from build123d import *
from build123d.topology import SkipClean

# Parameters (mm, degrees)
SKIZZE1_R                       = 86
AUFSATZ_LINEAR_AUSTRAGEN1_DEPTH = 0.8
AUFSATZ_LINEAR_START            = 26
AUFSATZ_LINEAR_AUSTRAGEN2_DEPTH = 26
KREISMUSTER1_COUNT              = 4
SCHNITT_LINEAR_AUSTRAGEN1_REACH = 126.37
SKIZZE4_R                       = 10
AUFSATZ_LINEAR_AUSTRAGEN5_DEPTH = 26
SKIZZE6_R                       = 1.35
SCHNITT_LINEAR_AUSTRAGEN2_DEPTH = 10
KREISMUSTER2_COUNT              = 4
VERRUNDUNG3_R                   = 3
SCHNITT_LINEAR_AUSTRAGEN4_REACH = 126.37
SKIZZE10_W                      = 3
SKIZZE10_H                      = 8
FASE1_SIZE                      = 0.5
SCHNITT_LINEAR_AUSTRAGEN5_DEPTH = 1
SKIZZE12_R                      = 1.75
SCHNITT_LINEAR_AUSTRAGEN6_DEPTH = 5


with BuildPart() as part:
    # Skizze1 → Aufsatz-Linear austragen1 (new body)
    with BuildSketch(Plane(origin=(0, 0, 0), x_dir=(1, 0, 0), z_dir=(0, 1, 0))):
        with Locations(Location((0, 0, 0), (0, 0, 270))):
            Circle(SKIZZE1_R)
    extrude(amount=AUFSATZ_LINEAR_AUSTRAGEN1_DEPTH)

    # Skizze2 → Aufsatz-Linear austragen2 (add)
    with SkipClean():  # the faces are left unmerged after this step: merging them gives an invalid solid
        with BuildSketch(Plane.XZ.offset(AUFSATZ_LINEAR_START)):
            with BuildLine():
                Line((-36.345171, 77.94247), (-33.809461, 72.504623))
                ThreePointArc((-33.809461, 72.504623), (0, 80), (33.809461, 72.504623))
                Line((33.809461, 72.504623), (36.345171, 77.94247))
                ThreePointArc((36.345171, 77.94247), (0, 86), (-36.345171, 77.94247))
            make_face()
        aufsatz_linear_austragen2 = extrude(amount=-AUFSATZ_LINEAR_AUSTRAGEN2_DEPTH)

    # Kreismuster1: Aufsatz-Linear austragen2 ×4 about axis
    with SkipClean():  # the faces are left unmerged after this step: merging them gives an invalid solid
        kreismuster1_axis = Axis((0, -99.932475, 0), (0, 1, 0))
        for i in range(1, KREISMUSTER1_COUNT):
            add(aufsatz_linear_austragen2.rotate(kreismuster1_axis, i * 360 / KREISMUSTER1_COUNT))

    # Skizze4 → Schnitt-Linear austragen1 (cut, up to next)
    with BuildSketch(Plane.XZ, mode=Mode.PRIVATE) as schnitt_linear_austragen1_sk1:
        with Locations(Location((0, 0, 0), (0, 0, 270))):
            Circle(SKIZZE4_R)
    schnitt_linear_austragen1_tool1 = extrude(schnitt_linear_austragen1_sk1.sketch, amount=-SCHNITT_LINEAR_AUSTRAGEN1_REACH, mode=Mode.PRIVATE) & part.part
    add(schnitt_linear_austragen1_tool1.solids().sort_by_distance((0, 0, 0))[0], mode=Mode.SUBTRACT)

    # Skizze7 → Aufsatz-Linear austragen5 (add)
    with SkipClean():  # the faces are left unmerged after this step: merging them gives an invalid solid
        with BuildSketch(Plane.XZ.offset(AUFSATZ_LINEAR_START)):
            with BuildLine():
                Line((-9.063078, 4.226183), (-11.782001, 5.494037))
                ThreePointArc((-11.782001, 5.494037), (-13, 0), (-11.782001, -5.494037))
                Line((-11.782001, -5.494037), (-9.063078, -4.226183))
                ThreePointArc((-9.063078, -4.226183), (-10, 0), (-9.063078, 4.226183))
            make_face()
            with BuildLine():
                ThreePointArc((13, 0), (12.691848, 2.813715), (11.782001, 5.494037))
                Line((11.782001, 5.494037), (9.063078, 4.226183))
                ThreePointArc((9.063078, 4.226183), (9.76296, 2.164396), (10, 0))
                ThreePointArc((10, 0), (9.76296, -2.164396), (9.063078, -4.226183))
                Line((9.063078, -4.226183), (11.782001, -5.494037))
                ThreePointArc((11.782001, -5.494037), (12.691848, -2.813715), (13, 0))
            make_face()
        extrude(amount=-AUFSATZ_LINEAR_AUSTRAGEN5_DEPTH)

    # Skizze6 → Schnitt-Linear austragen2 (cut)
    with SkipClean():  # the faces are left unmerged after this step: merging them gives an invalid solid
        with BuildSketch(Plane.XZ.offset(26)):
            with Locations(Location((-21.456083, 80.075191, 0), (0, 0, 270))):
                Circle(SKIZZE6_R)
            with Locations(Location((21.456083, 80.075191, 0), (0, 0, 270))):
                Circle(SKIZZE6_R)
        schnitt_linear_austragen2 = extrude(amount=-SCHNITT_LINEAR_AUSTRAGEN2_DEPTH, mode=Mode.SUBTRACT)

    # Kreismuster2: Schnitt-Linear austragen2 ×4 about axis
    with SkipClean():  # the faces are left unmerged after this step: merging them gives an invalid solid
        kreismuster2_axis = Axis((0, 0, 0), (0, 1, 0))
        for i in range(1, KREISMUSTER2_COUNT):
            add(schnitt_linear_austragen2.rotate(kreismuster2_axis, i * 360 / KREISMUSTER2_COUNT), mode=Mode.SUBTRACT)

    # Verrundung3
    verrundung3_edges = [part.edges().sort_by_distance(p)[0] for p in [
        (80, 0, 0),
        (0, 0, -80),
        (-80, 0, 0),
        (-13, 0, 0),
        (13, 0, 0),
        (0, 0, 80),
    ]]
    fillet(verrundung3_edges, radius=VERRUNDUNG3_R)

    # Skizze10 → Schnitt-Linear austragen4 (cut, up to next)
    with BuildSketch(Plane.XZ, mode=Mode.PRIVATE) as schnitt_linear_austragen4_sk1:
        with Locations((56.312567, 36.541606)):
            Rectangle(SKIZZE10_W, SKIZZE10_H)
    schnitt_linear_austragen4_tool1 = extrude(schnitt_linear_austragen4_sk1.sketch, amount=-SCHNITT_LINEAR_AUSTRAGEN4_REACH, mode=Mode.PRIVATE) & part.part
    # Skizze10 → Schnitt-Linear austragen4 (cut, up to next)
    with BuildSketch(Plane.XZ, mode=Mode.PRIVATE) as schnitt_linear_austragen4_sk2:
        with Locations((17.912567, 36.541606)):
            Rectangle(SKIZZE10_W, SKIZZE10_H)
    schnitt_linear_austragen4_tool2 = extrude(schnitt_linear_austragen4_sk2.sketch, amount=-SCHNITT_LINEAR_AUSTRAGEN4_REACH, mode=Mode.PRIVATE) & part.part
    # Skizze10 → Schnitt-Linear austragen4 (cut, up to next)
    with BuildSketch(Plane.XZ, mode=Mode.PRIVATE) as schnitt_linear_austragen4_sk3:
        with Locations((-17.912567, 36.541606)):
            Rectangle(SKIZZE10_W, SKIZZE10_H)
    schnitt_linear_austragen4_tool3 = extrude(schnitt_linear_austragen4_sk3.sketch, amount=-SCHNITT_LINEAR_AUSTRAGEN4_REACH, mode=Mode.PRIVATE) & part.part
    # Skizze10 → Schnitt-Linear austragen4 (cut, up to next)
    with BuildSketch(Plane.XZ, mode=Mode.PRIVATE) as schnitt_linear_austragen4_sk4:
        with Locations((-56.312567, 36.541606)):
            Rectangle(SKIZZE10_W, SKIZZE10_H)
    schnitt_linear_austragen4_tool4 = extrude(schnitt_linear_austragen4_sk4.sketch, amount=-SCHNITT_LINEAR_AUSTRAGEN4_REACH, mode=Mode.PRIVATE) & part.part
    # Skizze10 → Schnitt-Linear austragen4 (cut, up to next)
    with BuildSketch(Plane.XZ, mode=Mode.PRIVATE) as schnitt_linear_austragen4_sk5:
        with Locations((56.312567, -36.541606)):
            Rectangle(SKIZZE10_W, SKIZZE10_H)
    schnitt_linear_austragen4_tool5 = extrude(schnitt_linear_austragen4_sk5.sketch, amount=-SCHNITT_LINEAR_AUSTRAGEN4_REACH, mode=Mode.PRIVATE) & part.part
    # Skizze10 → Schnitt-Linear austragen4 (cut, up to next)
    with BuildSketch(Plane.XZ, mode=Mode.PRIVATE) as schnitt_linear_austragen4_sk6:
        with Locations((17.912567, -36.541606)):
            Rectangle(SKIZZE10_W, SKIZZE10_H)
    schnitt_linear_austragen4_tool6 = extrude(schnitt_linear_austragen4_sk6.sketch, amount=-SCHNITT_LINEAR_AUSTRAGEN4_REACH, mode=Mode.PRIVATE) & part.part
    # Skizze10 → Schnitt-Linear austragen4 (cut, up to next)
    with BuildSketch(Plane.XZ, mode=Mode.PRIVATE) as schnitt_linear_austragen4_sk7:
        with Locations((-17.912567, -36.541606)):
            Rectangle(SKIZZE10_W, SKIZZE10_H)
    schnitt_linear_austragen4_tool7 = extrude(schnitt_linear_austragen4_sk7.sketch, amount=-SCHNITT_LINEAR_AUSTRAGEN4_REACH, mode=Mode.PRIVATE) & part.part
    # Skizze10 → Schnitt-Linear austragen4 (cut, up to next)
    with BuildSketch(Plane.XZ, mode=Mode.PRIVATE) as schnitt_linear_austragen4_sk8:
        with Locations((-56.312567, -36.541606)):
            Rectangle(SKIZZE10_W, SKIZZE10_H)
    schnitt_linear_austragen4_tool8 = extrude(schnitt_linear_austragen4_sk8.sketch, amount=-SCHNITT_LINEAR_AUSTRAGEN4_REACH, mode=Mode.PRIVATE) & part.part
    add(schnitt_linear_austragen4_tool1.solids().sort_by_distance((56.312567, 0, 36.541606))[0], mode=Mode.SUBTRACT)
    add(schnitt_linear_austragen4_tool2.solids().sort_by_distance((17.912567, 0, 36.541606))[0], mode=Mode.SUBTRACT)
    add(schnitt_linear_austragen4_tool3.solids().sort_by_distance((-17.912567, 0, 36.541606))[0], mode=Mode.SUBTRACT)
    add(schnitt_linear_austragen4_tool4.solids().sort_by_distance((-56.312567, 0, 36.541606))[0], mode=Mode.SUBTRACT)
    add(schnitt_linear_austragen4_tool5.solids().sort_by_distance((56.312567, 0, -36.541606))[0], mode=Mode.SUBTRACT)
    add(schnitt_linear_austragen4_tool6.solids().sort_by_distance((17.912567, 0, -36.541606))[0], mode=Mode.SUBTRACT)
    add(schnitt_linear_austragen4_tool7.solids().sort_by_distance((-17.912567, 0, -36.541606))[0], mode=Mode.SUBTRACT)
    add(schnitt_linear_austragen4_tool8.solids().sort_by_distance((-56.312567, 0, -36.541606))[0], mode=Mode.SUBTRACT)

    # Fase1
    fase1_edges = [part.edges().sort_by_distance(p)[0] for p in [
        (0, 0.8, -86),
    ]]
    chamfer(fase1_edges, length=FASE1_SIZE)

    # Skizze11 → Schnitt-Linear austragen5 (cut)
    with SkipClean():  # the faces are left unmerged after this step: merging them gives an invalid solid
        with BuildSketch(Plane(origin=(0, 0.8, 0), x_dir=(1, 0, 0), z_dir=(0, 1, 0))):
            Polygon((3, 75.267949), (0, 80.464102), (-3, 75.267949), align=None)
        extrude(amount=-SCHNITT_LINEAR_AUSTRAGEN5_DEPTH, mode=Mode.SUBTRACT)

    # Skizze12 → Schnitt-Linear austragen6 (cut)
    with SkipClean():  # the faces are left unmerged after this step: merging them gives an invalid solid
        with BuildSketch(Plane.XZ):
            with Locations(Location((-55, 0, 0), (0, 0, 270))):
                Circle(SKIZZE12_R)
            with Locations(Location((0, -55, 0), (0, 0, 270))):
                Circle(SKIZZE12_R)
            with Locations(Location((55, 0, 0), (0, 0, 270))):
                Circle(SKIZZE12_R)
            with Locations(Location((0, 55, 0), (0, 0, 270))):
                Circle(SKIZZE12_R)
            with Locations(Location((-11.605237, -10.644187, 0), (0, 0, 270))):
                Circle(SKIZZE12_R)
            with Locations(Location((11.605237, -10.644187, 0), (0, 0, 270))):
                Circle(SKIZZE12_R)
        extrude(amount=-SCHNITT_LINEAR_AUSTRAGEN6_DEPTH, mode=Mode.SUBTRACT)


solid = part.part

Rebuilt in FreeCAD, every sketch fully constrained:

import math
import FreeCAD as App
import Part
import Sketcher
from FreeCAD import Vector
Q = App.Units.Quantity


def edges_at(feature, points):
    """Names of the edges that pass closest to the given points."""
    edges = feature.Shape.Edges
    near = lambda p: min(range(len(edges)), key=lambda i: edges[i].distToShape(Part.Vertex(*p))[0])
    return sorted({f"Edge{near(p) + 1}" for p in points})


def add_polygon(sketch, points):
    """Adds a closed chain of lines whose ends are joined by coincident constraints."""
    first, n = sketch.GeometryCount, len(points)
    for a, b in zip(points, points[1:] + points[:1]):
        sketch.addGeometry(Part.LineSegment(App.Vector(*a, 0), App.Vector(*b, 0)), False)
    for i in range(n):
        sketch.addConstraint(Sketcher.Constraint("Coincident", first + i, 2, first + (i + 1) % n, 1))

doc = App.newDocument("Part")
params = doc.addObject("Spreadsheet::Sheet", "Params")
for row, (alias, value) in enumerate([
    ("sketch1_diameter", "172 mm"),
    ("pad1_length", "0.8 mm"),
    ("sketch2_radius", "80.000001 mm"),
    ("sketch2_length", "6 mm"),
    ("pad2_length", "26 mm"),
    ("sketch3_diameter", "20 mm"),
    ("sketch4_length", "2.999999 mm"),
    ("pad3_length", "26 mm"),
    ("sketch5_diameter", "2.7 mm"),
    ("pocket2_length", "10 mm"),
    ("fillet_radius", "3 mm"),
    ("sketch6_width", "3 mm"),
    ("sketch6_height", "8 mm"),
    ("sketch7_width", "3 mm"),
    ("sketch7_height", "8 mm"),
    ("sketch8_width", "3 mm"),
    ("sketch8_height", "8 mm"),
    ("sketch9_width", "3 mm"),
    ("sketch9_height", "8 mm"),
    ("sketch10_width", "3 mm"),
    ("sketch10_height", "8 mm"),
    ("sketch11_width", "3 mm"),
    ("sketch11_height", "8 mm"),
    ("sketch12_width", "3 mm"),
    ("sketch12_height", "8 mm"),
    ("sketch13_width", "3 mm"),
    ("sketch13_height", "8 mm"),
    ("chamfer_size", "0.5 mm"),
    ("sketch14_width", "6 mm"),
    ("pocket11_length", "1 mm"),
    ("sketch15_diameter", "3.5 mm"),
    ("pocket12_length", "5 mm"),
], start=1):
    params.set(f"A{row}", alias)
    params.set(f"B{row}", "=" + value)
    params.setAlias(f"B{row}", alias)

body = doc.addObject("PartDesign::Body", "Body")

# Sketch on XZ plane
sketch1 = body.newObject("Sketcher::SketchObject", "Sketch")
sketch1.AttachmentSupport = (doc.getObject("XZ_Plane"), [""])
sketch1.MapMode = "FlatFace"
sketch1.addGeometry(Part.Circle(Vector(0, 0, 0), Vector(0, 0, 1), 86), False)
sketch1.addConstraint([
    Sketcher.Constraint("Coincident", 0, 3, -1, 1),
    Sketcher.Constraint("Diameter", 0, 172.0),
])
sketch1.setExpression("Constraints[1]", "Params.sketch1_diameter")
pad1 = body.newObject("PartDesign::Pad", "Pad")
pad1.Profile = sketch1
pad1.setExpression("Length", "Params.pad1_length")
pad1.Reversed = True

# Sketch on XZ plane
sketch2 = body.newObject("Sketcher::SketchObject", "Sketch001")
sketch2.AttachmentSupport = (doc.getObject("XZ_Plane"), [""])
sketch2.MapMode = "FlatFace"
sketch2.AttachmentOffset = App.Placement(Vector(0, 0, 26), App.Rotation())
sketch2.addGeometry([
    Part.LineSegment(Vector(-36.345171, 77.94247, 0), Vector(-33.809461, 72.504623, 0)),
    Part.ArcOfCircle(Part.Circle(Vector(0, -0.000001, 0), Vector(0, 0, 1), 80.000001), math.radians(65), math.radians(115)),
    Part.LineSegment(Vector(33.809461, 72.504623, 0), Vector(36.345171, 77.94247, 0)),
    Part.ArcOfCircle(Part.Circle(Vector(0, -0.000005, 0), Vector(0, 0, 1), 86.000005), math.radians(65.000001), math.radians(114.999999)),
], False)
sketch2.addConstraint([
    Sketcher.Constraint("Coincident", 0, 2, 1, 2),
    Sketcher.Constraint("Coincident", 1, 1, 2, 1),
    Sketcher.Constraint("Coincident", 2, 2, 3, 1),
    Sketcher.Constraint("Coincident", 3, 2, 0, 1),
    Sketcher.Constraint("Coincident", 1, 3, -1, 1),
    Sketcher.Constraint("Coincident", 3, 3, -1, 1),
    Sketcher.Constraint("Horizontal", 0, 2, 1, 1),
    Sketcher.Constraint("Horizontal", 2, 2, 3, 2),
    Sketcher.Constraint("Radius", 1, 80.000001),
    Sketcher.Constraint("Angle", 0, Q("-64.999997 deg")),
    Sketcher.Constraint("Distance", 0, 6.0),
    Sketcher.Constraint("DistanceX", 0, 2, -1, 1, 33.809461),
])
sketch2.setExpression("Constraints[8]", "Params.sketch2_radius")
sketch2.setExpression("Constraints[10]", "Params.sketch2_length")
pad2 = body.newObject("PartDesign::Pad", "Pad001")
pad2.Profile = sketch2
pad2.setExpression("Length", "Params.pad2_length")
pad2.Reversed = True
doc.recompute()

polarpattern = body.newObject("PartDesign::PolarPattern", "PolarPattern")
polarpattern.Originals = [pad2]
polarpattern.Axis = (doc.getObject("Y_Axis"), [""])
polarpattern.Angle = 360
polarpattern.Occurrences = 4
body.Tip = polarpattern

# Sketch on XZ plane
sketch3 = body.newObject("Sketcher::SketchObject", "Sketch002")
sketch3.AttachmentSupport = (doc.getObject("XZ_Plane"), [""])
sketch3.MapMode = "FlatFace"
sketch3.addGeometry(Part.Circle(Vector(0, 0, 0), Vector(0, 0, 1), 10), False)
sketch3.addConstraint([
    Sketcher.Constraint("Coincident", 0, 3, -1, 1),
    Sketcher.Constraint("Diameter", 0, 20.0),
])
sketch3.setExpression("Constraints[1]", "Params.sketch3_diameter")
pocket1 = body.newObject("PartDesign::Pocket", "Pocket")
pocket1.Profile = sketch3
pocket1.Type = "UpToFirst"

# Sketch on XZ plane
sketch4 = body.newObject("Sketcher::SketchObject", "Sketch003")
sketch4.AttachmentSupport = (doc.getObject("XZ_Plane"), [""])
sketch4.MapMode = "FlatFace"
sketch4.AttachmentOffset = App.Placement(Vector(0, 0, 26), App.Rotation())
sketch4.addGeometry([
    Part.LineSegment(Vector(-9.063078, 4.226183, 0), Vector(-11.782001, 5.494037, 0)),  # 0
    Part.ArcOfCircle(Part.Circle(Vector(-0.000004, 0, 0), Vector(0, 0, 1), 12.999996), math.radians(154.999994), math.radians(205.000006)),  # 1
    Part.LineSegment(Vector(-11.782001, -5.494037, 0), Vector(-9.063078, -4.226183, 0)),  # 2
    Part.ArcOfCircle(Part.Circle(Vector(0.000003, 0, 0), Vector(0, 0, 1), 10.000003), math.radians(155.000006), math.radians(204.999994)),  # 3
    Part.ArcOfCircle(Part.Circle(Vector(0.000004, 0, 0), Vector(0, 0, 1), 12.999996), math.radians(0), math.radians(25.000007)),  # 4
    Part.LineSegment(Vector(11.782001, 5.494037, 0), Vector(9.063078, 4.226183, 0)),  # 5
    Part.ArcOfCircle(Part.Circle(Vector(-0.00001, -0.000002, 0), Vector(0, 0, 1), 10.00001), math.radians(0.000009), math.radians(24.999986)),  # 6
    Part.ArcOfCircle(Part.Circle(Vector(-0.00001, 0.000002, 0), Vector(0, 0, 1), 10.00001), math.radians(-24.999986), math.radians(-0.000009)),  # 7
    Part.LineSegment(Vector(9.063078, -4.226183, 0), Vector(11.782001, -5.494037, 0)),  # 8
    Part.ArcOfCircle(Part.Circle(Vector(0.000004, 0, 0), Vector(0, 0, 1), 12.999996), math.radians(-25.000007), math.radians(0)),  # 9
], False)
sketch4.addConstraint([
    Sketcher.Constraint("Coincident", 0, 2, 1, 1),
    Sketcher.Constraint("Coincident", 1, 2, 2, 1),
    Sketcher.Constraint("Coincident", 2, 2, 3, 2),
    Sketcher.Constraint("Coincident", 3, 1, 0, 1),
    Sketcher.Constraint("Coincident", 4, 2, 5, 1),
    Sketcher.Constraint("Coincident", 5, 2, 6, 2),
    Sketcher.Constraint("Tangent", 6, 1, 7, 2),
    Sketcher.Constraint("Coincident", 7, 1, 8, 1),
    Sketcher.Constraint("Coincident", 8, 2, 9, 1),
    Sketcher.Constraint("Tangent", 9, 2, 4, 1),
    Sketcher.Constraint("Coincident", 1, 3, -1, 1),
    Sketcher.Constraint("Coincident", 3, 3, -1, 1),
    Sketcher.Constraint("Coincident", 4, 3, -1, 1),
    Sketcher.Constraint("Coincident", 6, 3, 1, 3),
    Sketcher.Constraint("Equal", 1, 4),
    Sketcher.Constraint("Equal", 6, 7),
    Sketcher.Constraint("Equal", 4, 9),
    Sketcher.Constraint("Symmetric", 2, 2, 5, 2, -1, 1),
    Sketcher.Constraint("PointOnObject", 6, 1, -1),
    Sketcher.Constraint("PointOnObject", 9, 2, -1),
    Sketcher.Constraint("Parallel", 2, 5),
    Sketcher.Constraint("Parallel", 0, 8),
    Sketcher.Constraint("Horizontal", 0, 2, 4, 2),
    Sketcher.Constraint("Horizontal", 3, 1, 5, 2),
    Sketcher.Constraint("Horizontal", 2, 2, 7, 1),
    Sketcher.Constraint("Angle", 0, Q("155.000011 deg")),
    Sketcher.Constraint("Distance", 0, 2.999999),
    Sketcher.Constraint("DistanceX", -1, 1, 6, 1, 10.0),
    Sketcher.Constraint("DistanceX", 0, 2, -1, 1, 11.782001),
])
sketch4.setExpression("Constraints[26]", "Params.sketch4_length")
pad3 = body.newObject("PartDesign::Pad", "Pad002")
pad3.Profile = sketch4
pad3.setExpression("Length", "Params.pad3_length")
pad3.Reversed = True

# Sketch on XZ plane
sketch5 = body.newObject("Sketcher::SketchObject", "Sketch004")
sketch5.AttachmentSupport = (doc.getObject("XZ_Plane"), [""])
sketch5.MapMode = "FlatFace"
sketch5.AttachmentOffset = App.Placement(Vector(0, 0, 26), App.Rotation())
sketch5.addGeometry([
    Part.Circle(Vector(-21.456083, 80.075191, 0), Vector(0, 0, 1), 1.35),
    Part.Circle(Vector(21.456083, 80.075191, 0), Vector(0, 0, 1), 1.35),
], False)
sketch5.addConstraint([
    Sketcher.Constraint("Equal", 0, 1),
    Sketcher.Constraint("Symmetric", 0, 3, 1, 3, -2),
    Sketcher.Constraint("Diameter", 0, 2.7),
    Sketcher.Constraint("DistanceY", -1, 1, 0, 3, 80.075191),
    Sketcher.Constraint("DistanceX", 0, 3, -1, 1, 21.456083),
])
sketch5.setExpression("Constraints[2]", "Params.sketch5_diameter")
pocket2 = body.newObject("PartDesign::Pocket", "Pocket001")
pocket2.Profile = sketch5
pocket2.setExpression("Length", "Params.pocket2_length")
doc.recompute()

polarpattern2 = body.newObject("PartDesign::PolarPattern", "PolarPattern001")
polarpattern2.Originals = [pocket2]
polarpattern2.Axis = (doc.getObject("Y_Axis"), [""])
polarpattern2.Angle = 360
polarpattern2.Occurrences = 4
body.Tip = polarpattern2
doc.recompute()

fillet = body.newObject("PartDesign::Fillet", "Fillet")
fillet.Base = (polarpattern2, edges_at(polarpattern2, [
    (80, 0, 0),
    (0, 0, -80),
    (-80, 0, 0),
    (-13, 0, 0),
    (12.692, 0, 2.814),
    (0, 0, 80),
]))
fillet.setExpression("Radius", "Params.fillet_radius")

# Sketch on XZ plane
sketch6 = body.newObject("Sketcher::SketchObject", "Sketch005")
sketch6.AttachmentSupport = (doc.getObject("XZ_Plane"), [""])
sketch6.MapMode = "FlatFace"
add_polygon(sketch6, [(54.812567, 40.541606), (54.812567, 32.541606), (57.812567, 32.541606), (57.812567, 40.541606)])  # lines 0-3
sketch6.addConstraint([
    Sketcher.Constraint("Vertical", 0),
    Sketcher.Constraint("Horizontal", 1),
    Sketcher.Constraint("Vertical", 2),
    Sketcher.Constraint("Horizontal", 3),
    Sketcher.Constraint("DistanceX", 1, 1, 1, 2, 3.0),
    Sketcher.Constraint("DistanceY", 0, 2, 0, 1, 8.0),
    Sketcher.Constraint("DistanceX", -1, 1, 0, 2, 54.812567),
    Sketcher.Constraint("DistanceY", -1, 1, 0, 2, 32.541606),
])
sketch6.setExpression("Constraints[8]", "Params.sketch6_width")
sketch6.setExpression("Constraints[9]", "Params.sketch6_height")
pocket3 = body.newObject("PartDesign::Pocket", "Pocket002")
pocket3.Profile = sketch6
pocket3.Type = "UpToFirst"

# Sketch on XZ plane
sketch7 = body.newObject("Sketcher::SketchObject", "Sketch006")
sketch7.AttachmentSupport = (doc.getObject("XZ_Plane"), [""])
sketch7.MapMode = "FlatFace"
add_polygon(sketch7, [(16.412567, 40.541606), (16.412567, 32.541606), (19.412567, 32.541606), (19.412567, 40.541606)])  # lines 0-3
sketch7.addConstraint([
    Sketcher.Constraint("Vertical", 0),
    Sketcher.Constraint("Horizontal", 1),
    Sketcher.Constraint("Vertical", 2),
    Sketcher.Constraint("Horizontal", 3),
    Sketcher.Constraint("DistanceX", 1, 1, 1, 2, 3.0),
    Sketcher.Constraint("DistanceY", 0, 2, 0, 1, 8.0),
    Sketcher.Constraint("DistanceX", -1, 1, 0, 2, 16.412567),
    Sketcher.Constraint("DistanceY", -1, 1, 0, 2, 32.541606),
])
sketch7.setExpression("Constraints[8]", "Params.sketch7_width")
sketch7.setExpression("Constraints[9]", "Params.sketch7_height")
pocket4 = body.newObject("PartDesign::Pocket", "Pocket003")
pocket4.Profile = sketch7
pocket4.Type = "UpToFirst"

# Sketch on XZ plane
sketch8 = body.newObject("Sketcher::SketchObject", "Sketch007")
sketch8.AttachmentSupport = (doc.getObject("XZ_Plane"), [""])
sketch8.MapMode = "FlatFace"
add_polygon(sketch8, [(-19.412567, 40.541606), (-19.412567, 32.541606), (-16.412567, 32.541606), (-16.412567, 40.541606)])  # lines 0-3
sketch8.addConstraint([
    Sketcher.Constraint("Vertical", 0),
    Sketcher.Constraint("Horizontal", 1),
    Sketcher.Constraint("Vertical", 2),
    Sketcher.Constraint("Horizontal", 3),
    Sketcher.Constraint("DistanceX", 1, 1, 1, 2, 3.0),
    Sketcher.Constraint("DistanceY", 0, 2, 0, 1, 8.0),
    Sketcher.Constraint("DistanceX", 0, 2, -1, 1, 19.412567),
    Sketcher.Constraint("DistanceY", -1, 1, 0, 2, 32.541606),
])
sketch8.setExpression("Constraints[8]", "Params.sketch8_width")
sketch8.setExpression("Constraints[9]", "Params.sketch8_height")
pocket5 = body.newObject("PartDesign::Pocket", "Pocket004")
pocket5.Profile = sketch8
pocket5.Type = "UpToFirst"

# Sketch on XZ plane
sketch9 = body.newObject("Sketcher::SketchObject", "Sketch008")
sketch9.AttachmentSupport = (doc.getObject("XZ_Plane"), [""])
sketch9.MapMode = "FlatFace"
add_polygon(sketch9, [(-57.812567, 40.541606), (-57.812567, 32.541606), (-54.812567, 32.541606), (-54.812567, 40.541606)])  # lines 0-3
sketch9.addConstraint([
    Sketcher.Constraint("Vertical", 0),
    Sketcher.Constraint("Horizontal", 1),
    Sketcher.Constraint("Vertical", 2),
    Sketcher.Constraint("Horizontal", 3),
    Sketcher.Constraint("DistanceX", 1, 1, 1, 2, 3.0),
    Sketcher.Constraint("DistanceY", 0, 2, 0, 1, 8.0),
    Sketcher.Constraint("DistanceX", 0, 2, -1, 1, 57.812567),
    Sketcher.Constraint("DistanceY", -1, 1, 0, 2, 32.541606),
])
sketch9.setExpression("Constraints[8]", "Params.sketch9_width")
sketch9.setExpression("Constraints[9]", "Params.sketch9_height")
pocket6 = body.newObject("PartDesign::Pocket", "Pocket005")
pocket6.Profile = sketch9
pocket6.Type = "UpToFirst"

# Sketch on XZ plane
sketch10 = body.newObject("Sketcher::SketchObject", "Sketch009")
sketch10.AttachmentSupport = (doc.getObject("XZ_Plane"), [""])
sketch10.MapMode = "FlatFace"
add_polygon(sketch10, [(54.812567, -32.541606), (54.812567, -40.541606), (57.812567, -40.541606), (57.812567, -32.541606)])  # lines 0-3
sketch10.addConstraint([
    Sketcher.Constraint("Vertical", 0),
    Sketcher.Constraint("Horizontal", 1),
    Sketcher.Constraint("Vertical", 2),
    Sketcher.Constraint("Horizontal", 3),
    Sketcher.Constraint("DistanceX", 1, 1, 1, 2, 3.0),
    Sketcher.Constraint("DistanceY", 0, 2, 0, 1, 8.0),
    Sketcher.Constraint("DistanceX", -1, 1, 0, 2, 54.812567),
    Sketcher.Constraint("DistanceY", 0, 2, -1, 1, 40.541606),
])
sketch10.setExpression("Constraints[8]", "Params.sketch10_width")
sketch10.setExpression("Constraints[9]", "Params.sketch10_height")
pocket7 = body.newObject("PartDesign::Pocket", "Pocket006")
pocket7.Profile = sketch10
pocket7.Type = "UpToFirst"

# Sketch on XZ plane
sketch11 = body.newObject("Sketcher::SketchObject", "Sketch010")
sketch11.AttachmentSupport = (doc.getObject("XZ_Plane"), [""])
sketch11.MapMode = "FlatFace"
add_polygon(sketch11, [(16.412567, -32.541606), (16.412567, -40.541606), (19.412567, -40.541606), (19.412567, -32.541606)])  # lines 0-3
sketch11.addConstraint([
    Sketcher.Constraint("Vertical", 0),
    Sketcher.Constraint("Horizontal", 1),
    Sketcher.Constraint("Vertical", 2),
    Sketcher.Constraint("Horizontal", 3),
    Sketcher.Constraint("DistanceX", 1, 1, 1, 2, 3.0),
    Sketcher.Constraint("DistanceY", 0, 2, 0, 1, 8.0),
    Sketcher.Constraint("DistanceX", -1, 1, 0, 2, 16.412567),
    Sketcher.Constraint("DistanceY", 0, 2, -1, 1, 40.541606),
])
sketch11.setExpression("Constraints[8]", "Params.sketch11_width")
sketch11.setExpression("Constraints[9]", "Params.sketch11_height")
pocket8 = body.newObject("PartDesign::Pocket", "Pocket007")
pocket8.Profile = sketch11
pocket8.Type = "UpToFirst"

# Sketch on XZ plane
sketch12 = body.newObject("Sketcher::SketchObject", "Sketch011")
sketch12.AttachmentSupport = (doc.getObject("XZ_Plane"), [""])
sketch12.MapMode = "FlatFace"
add_polygon(sketch12, [(-19.412567, -32.541606), (-19.412567, -40.541606), (-16.412567, -40.541606), (-16.412567, -32.541606)])  # lines 0-3
sketch12.addConstraint([
    Sketcher.Constraint("Vertical", 0),
    Sketcher.Constraint("Horizontal", 1),
    Sketcher.Constraint("Vertical", 2),
    Sketcher.Constraint("Horizontal", 3),
    Sketcher.Constraint("DistanceX", 1, 1, 1, 2, 3.0),
    Sketcher.Constraint("DistanceY", 0, 2, 0, 1, 8.0),
    Sketcher.Constraint("DistanceX", 0, 2, -1, 1, 19.412567),
    Sketcher.Constraint("DistanceY", 0, 2, -1, 1, 40.541606),
])
sketch12.setExpression("Constraints[8]", "Params.sketch12_width")
sketch12.setExpression("Constraints[9]", "Params.sketch12_height")
pocket9 = body.newObject("PartDesign::Pocket", "Pocket008")
pocket9.Profile = sketch12
pocket9.Type = "UpToFirst"

# Sketch on XZ plane
sketch13 = body.newObject("Sketcher::SketchObject", "Sketch012")
sketch13.AttachmentSupport = (doc.getObject("XZ_Plane"), [""])
sketch13.MapMode = "FlatFace"
add_polygon(sketch13, [(-57.812567, -32.541606), (-57.812567, -40.541606), (-54.812567, -40.541606), (-54.812567, -32.541606)])  # lines 0-3
sketch13.addConstraint([
    Sketcher.Constraint("Vertical", 0),
    Sketcher.Constraint("Horizontal", 1),
    Sketcher.Constraint("Vertical", 2),
    Sketcher.Constraint("Horizontal", 3),
    Sketcher.Constraint("DistanceX", 1, 1, 1, 2, 3.0),
    Sketcher.Constraint("DistanceY", 0, 2, 0, 1, 8.0),
    Sketcher.Constraint("DistanceX", 0, 2, -1, 1, 57.812567),
    Sketcher.Constraint("DistanceY", 0, 2, -1, 1, 40.541606),
])
sketch13.setExpression("Constraints[8]", "Params.sketch13_width")
sketch13.setExpression("Constraints[9]", "Params.sketch13_height")
pocket10 = body.newObject("PartDesign::Pocket", "Pocket009")
pocket10.Profile = sketch13
pocket10.Type = "UpToFirst"
doc.recompute()

chamfer = body.newObject("PartDesign::Chamfer", "Chamfer")
chamfer.Base = (pocket10, edges_at(pocket10, [(0, 0.8, -86)]))
chamfer.setExpression("Size", "Params.chamfer_size")

# Sketch on XZ plane
sketch14 = body.newObject("Sketcher::SketchObject", "Sketch013")
sketch14.AttachmentSupport = (doc.getObject("XZ_Plane"), [""])
sketch14.MapMode = "FlatFace"
sketch14.AttachmentOffset = App.Placement(Vector(0, 0, -0.8), App.Rotation())
add_polygon(sketch14, [(3, -75.267949), (0, -80.464102), (-3, -75.267949)])  # lines 0-2
sketch14.addConstraint([
    Sketcher.Constraint("Horizontal", 2),
    Sketcher.Constraint("PointOnObject", 0, 2, -2),
    Sketcher.Constraint("Equal", 0, 1),
    Sketcher.Constraint("DistanceX", 2, 1, 2, 2, 6.0),
    Sketcher.Constraint("Angle", 0, Q("-119.999997 deg")),
    Sketcher.Constraint("DistanceY", 0, 2, -1, 1, 80.464102),
])
sketch14.setExpression("Constraints[6]", "Params.sketch14_width")
pocket11 = body.newObject("PartDesign::Pocket", "Pocket010")
pocket11.Profile = sketch14
pocket11.setExpression("Length", "Params.pocket11_length")
pocket11.Reversed = True

# Sketch on XZ plane
sketch15 = body.newObject("Sketcher::SketchObject", "Sketch014")
sketch15.AttachmentSupport = (doc.getObject("XZ_Plane"), [""])
sketch15.MapMode = "FlatFace"
sketch15.addGeometry([
    Part.Circle(Vector(-55, 0, 0), Vector(0, 0, 1), 1.75),  # 0
    Part.Circle(Vector(0, -55, 0), Vector(0, 0, 1), 1.75),  # 1
    Part.Circle(Vector(55, 0, 0), Vector(0, 0, 1), 1.75),  # 2
    Part.Circle(Vector(0, 55, 0), Vector(0, 0, 1), 1.75),  # 3
    Part.Circle(Vector(-11.605237, -10.644187, 0), Vector(0, 0, 1), 1.75),  # 4
    Part.Circle(Vector(11.605237, -10.644187, 0), Vector(0, 0, 1), 1.75),  # 5
], False)
sketch15.addConstraint([
    Sketcher.Constraint("Equal", 0, 1),
    Sketcher.Constraint("Equal", 1, 2),
    Sketcher.Constraint("Equal", 2, 3),
    Sketcher.Constraint("Equal", 3, 4),
    Sketcher.Constraint("Equal", 4, 5),
    Sketcher.Constraint("Symmetric", 0, 3, 2, 3, -1, 1),
    Sketcher.Constraint("Symmetric", 1, 3, 3, 3, -1, 1),
    Sketcher.Constraint("Symmetric", 4, 3, 5, 3, -2),
    Sketcher.Constraint("PointOnObject", 0, 3, -1),
    Sketcher.Constraint("PointOnObject", 1, 3, -2),
    Sketcher.Constraint("Diameter", 0, 3.5),
    Sketcher.Constraint("DistanceX", 0, 3, -1, 1, 55.0),
    Sketcher.Constraint("DistanceY", 1, 3, -1, 1, 55.0),
    Sketcher.Constraint("DistanceX", 4, 3, -1, 1, 11.605237),
    Sketcher.Constraint("DistanceY", 4, 3, -1, 1, 10.644187),
])
sketch15.setExpression("Constraints[10]", "Params.sketch15_diameter")
pocket12 = body.newObject("PartDesign::Pocket", "Pocket011")
pocket12.Profile = sketch15
pocket12.setExpression("Length", "Params.pocket12_length")

doc.recompute()
